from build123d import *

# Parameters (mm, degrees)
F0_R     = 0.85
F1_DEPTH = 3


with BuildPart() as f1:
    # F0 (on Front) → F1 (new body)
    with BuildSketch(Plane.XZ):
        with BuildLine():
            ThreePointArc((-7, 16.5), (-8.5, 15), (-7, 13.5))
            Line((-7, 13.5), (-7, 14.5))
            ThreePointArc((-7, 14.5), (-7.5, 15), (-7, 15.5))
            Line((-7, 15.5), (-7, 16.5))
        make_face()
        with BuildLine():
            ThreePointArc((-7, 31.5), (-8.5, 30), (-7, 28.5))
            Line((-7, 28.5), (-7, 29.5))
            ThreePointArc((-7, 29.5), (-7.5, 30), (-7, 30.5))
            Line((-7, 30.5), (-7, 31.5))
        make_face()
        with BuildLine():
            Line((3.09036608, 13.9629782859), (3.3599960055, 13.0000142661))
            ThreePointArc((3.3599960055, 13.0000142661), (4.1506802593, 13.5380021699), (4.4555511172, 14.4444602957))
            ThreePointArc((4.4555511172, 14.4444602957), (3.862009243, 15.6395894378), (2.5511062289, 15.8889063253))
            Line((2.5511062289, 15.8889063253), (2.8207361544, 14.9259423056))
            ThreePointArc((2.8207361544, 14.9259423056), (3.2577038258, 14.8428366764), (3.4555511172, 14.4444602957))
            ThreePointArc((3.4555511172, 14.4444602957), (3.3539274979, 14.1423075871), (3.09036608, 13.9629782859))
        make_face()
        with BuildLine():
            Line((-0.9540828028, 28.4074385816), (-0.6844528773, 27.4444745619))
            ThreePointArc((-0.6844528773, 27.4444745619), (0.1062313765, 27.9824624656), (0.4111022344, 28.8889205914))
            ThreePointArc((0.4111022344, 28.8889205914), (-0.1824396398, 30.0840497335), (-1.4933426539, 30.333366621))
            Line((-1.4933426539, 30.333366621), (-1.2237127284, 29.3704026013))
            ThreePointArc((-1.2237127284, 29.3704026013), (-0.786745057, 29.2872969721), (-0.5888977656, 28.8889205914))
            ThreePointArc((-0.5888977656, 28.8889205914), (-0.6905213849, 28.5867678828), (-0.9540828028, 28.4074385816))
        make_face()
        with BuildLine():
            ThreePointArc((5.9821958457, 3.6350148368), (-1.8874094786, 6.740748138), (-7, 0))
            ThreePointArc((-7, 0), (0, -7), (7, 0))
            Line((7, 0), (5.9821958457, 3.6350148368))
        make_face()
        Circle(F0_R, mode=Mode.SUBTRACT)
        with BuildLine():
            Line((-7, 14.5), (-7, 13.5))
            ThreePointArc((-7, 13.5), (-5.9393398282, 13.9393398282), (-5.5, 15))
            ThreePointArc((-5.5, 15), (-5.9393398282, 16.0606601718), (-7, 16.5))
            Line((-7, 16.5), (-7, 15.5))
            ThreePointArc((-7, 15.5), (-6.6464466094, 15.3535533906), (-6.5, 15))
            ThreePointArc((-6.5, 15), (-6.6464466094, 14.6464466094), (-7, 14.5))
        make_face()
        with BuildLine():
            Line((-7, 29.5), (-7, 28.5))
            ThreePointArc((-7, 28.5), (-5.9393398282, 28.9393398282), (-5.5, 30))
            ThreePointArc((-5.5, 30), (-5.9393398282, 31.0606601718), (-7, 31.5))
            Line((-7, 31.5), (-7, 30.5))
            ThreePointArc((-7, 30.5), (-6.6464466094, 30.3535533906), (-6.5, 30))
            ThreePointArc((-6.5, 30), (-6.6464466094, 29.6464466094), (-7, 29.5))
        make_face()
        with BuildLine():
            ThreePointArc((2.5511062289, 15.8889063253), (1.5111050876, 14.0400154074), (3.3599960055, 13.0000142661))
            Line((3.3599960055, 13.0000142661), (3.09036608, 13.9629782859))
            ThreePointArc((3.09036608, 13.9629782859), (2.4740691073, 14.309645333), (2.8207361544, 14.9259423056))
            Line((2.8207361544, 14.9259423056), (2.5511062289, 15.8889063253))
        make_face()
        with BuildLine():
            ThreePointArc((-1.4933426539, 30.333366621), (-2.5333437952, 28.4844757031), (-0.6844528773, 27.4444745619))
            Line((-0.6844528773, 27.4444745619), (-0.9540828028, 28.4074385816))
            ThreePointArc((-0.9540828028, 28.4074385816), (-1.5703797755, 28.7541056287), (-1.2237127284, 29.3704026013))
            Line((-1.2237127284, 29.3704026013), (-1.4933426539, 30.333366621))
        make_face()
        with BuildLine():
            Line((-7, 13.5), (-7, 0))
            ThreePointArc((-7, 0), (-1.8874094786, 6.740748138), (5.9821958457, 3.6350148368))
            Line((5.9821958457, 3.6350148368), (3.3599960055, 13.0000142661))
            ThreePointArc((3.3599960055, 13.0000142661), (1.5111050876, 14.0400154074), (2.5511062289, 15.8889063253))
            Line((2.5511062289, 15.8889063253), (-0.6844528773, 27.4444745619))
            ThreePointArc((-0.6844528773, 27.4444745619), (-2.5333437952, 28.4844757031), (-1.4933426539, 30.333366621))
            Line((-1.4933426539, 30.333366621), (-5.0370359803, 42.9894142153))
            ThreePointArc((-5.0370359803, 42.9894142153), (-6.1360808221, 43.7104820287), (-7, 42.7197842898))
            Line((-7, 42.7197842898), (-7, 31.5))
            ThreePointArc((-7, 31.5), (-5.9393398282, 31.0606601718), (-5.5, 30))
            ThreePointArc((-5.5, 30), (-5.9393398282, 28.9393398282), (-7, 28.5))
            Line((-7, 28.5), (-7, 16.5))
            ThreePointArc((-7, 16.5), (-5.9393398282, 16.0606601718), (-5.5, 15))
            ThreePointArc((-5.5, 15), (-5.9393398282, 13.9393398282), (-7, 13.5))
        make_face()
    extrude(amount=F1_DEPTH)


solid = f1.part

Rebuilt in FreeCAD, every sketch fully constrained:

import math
import FreeCAD as App
import Part
import Sketcher
from FreeCAD import Vector
Q = App.Units.Quantity

doc = App.newDocument("Part")
params = doc.addObject("Spreadsheet::Sheet", "Params")
for row, (alias, value) in enumerate([
    ("sketch1_radius", "7 mm"),
    ("sketch1_radius2", "1 mm"),
    ("sketch1_diameter", "1.7 mm"),
    ("sketch1_radius3", "1.5 mm"),
    ("sketch1_radius4", "0.5 mm"),
    ("pad1_length", "3 mm"),
], start=1):
    params.set(f"A{row}", alias)
    params.set(f"B{row}", "=" + value)
    params.setAlias(f"B{row}", alias)

body = doc.addObject("PartDesign::Body", "Body")

sketch1 = doc.addObject("Sketcher::SketchObject", "Sketch")
body.addObject(sketch1)
sketch1.AttachmentSupport = (doc.XZ_Plane, [""])
sketch1.MapMode = "FlatFace"
sketch1.addGeometry(Part.ArcOfCircle(Part.Circle(Vector(-7, 15, 0), Vector(0, 0, 1), 1.5), math.radians(90), math.radians(270)), False)
sketch1.addGeometry(Part.LineSegment(Vector(-7, 13.5, 0), Vector(-7, 0, 0)), False)
sketch1.addGeometry(Part.ArcOfCircle(Part.Circle(Vector(0, 0, 0), Vector(0, 0, 1), 7), math.radians(180), math.radians(360)), False)
sketch1.addGeometry(Part.LineSegment(Vector(7, 0, 0), Vector(3.4, 13, 0)), False)
sketch1.addGeometry(Part.ArcOfCircle(Part.Circle(Vector(3, 14.4, 0), Vector(0, 0, 1), 1.5), math.radians(-74), math.radians(0)), False)
sketch1.addGeometry(Part.ArcOfCircle(Part.Circle(Vector(3, 14.4, 0), Vector(0, 0, 1), 1.5), math.radians(0), math.radians(106)), False)
sketch1.addGeometry(Part.LineSegment(Vector(2.6, 15.9, 0), Vector(-0.7, 27.4, 0)), False)
sketch1.addGeometry(Part.ArcOfCircle(Part.Circle(Vector(-1.1, 28.9, 0), Vector(0, 0, 1), 1.5), math.radians(-74), math.radians(0)), False)
sketch1.addGeometry(Part.ArcOfCircle(Part.Circle(Vector(-1.1, 28.9, 0), Vector(0, 0, 1), 1.5), math.radians(0), math.radians(106)), False)
sketch1.addGeometry(Part.LineSegment(Vector(-1.5, 30.3, 0), Vector(-5, 43, 0)), False)
sketch1.addGeometry(Part.ArcOfCircle(Part.Circle(Vector(-6, 42.7, 0), Vector(0, 0, 1), 1), math.radians(16), math.radians(180)), False)
sketch1.addGeometry(Part.LineSegment(Vector(-7, 42.7, 0), Vector(-7, 31.5, 0)), False)
sketch1.addGeometry(Part.ArcOfCircle(Part.Circle(Vector(-7, 30, 0), Vector(0, 0, 1), 1.5), math.radians(90), math.radians(270)), False)
sketch1.addGeometry(Part.LineSegment(Vector(-7, 28.5, 0), Vector(-7, 16.5, 0)), False)
sketch1.addGeometry(Part.ArcOfCircle(Part.Circle(Vector(-7, 15, 0), Vector(0, 0, 1), 0.5), math.radians(90), math.radians(270)), False)
sketch1.addGeometry(Part.ArcOfCircle(Part.Circle(Vector(-7, 15, 0), Vector(0, 0, 1), 0.5), math.radians(0), math.radians(90)), False)
sketch1.addGeometry(Part.ArcOfCircle(Part.Circle(Vector(-7, 15, 0), Vector(0, 0, 1), 0.5), math.radians(-90), math.radians(0)), False)
sketch1.addGeometry(Part.Circle(Vector(0, 0, 0), Vector(0, 0, 1), 0.8), False)
sketch1.addGeometry(Part.ArcOfCircle(Part.Circle(Vector(3, 14.4, 0), Vector(0, 0, 1), 0.5), math.radians(106), math.radians(286)), False)
sketch1.addGeometry(Part.ArcOfCircle(Part.Circle(Vector(3, 14.4, 0), Vector(0, 0, 1), 0.5), math.radians(0), math.radians(106)), False)
sketch1.addGeometry(Part.ArcOfCircle(Part.Circle(Vector(3, 14.4, 0), Vector(0, 0, 1), 0.5), math.radians(-74), math.radians(0)), False)
sketch1.addGeometry(Part.ArcOfCircle(Part.Circle(Vector(-1.1, 28.9, 0), Vector(0, 0, 1), 0.5), math.radians(106), math.radians(286)), False)
sketch1.addGeometry(Part.ArcOfCircle(Part.Circle(Vector(-1.1, 28.9, 0), Vector(0, 0, 1), 0.5), math.radians(0), math.radians(106)), False)
sketch1.addGeometry(Part.ArcOfCircle(Part.Circle(Vector(-1.1, 28.9, 0), Vector(0, 0, 1), 0.5), math.radians(-74), math.radians(0)), False)
sketch1.addGeometry(Part.ArcOfCircle(Part.Circle(Vector(-7, 30, 0), Vector(0, 0, 1), 0.5), math.radians(0), math.radians(90)), False)
sketch1.addGeometry(Part.ArcOfCircle(Part.Circle(Vector(-7, 30, 0), Vector(0, 0, 1), 0.5), math.radians(-90), math.radians(0)), False)
sketch1.addGeometry(Part.ArcOfCircle(Part.Circle(Vector(-7, 30, 0), Vector(0, 0, 1), 0.5), math.radians(90), math.radians(270)), False)
sketch1.addConstraint(Sketcher.Constraint("Coincident", 0, 2, 1, 1))
sketch1.addConstraint(Sketcher.Constraint("Tangent", 1, 2, 2, 1))
sketch1.addConstraint(Sketcher.Constraint("Coincident", 2, 2, 3, 1))
sketch1.addConstraint(Sketcher.Constraint("Coincident", 3, 2, 4, 1))
sketch1.addConstraint(Sketcher.Constraint("Tangent", 4, 2, 5, 1))
sketch1.addConstraint(Sketcher.Constraint("Coincident", 5, 2, 6, 1))
sketch1.addConstraint(Sketcher.Constraint("Coincident", 6, 2, 7, 1))
sketch1.addConstraint(Sketcher.Constraint("Tangent", 7, 2, 8, 1))
sketch1.addConstraint(Sketcher.Constraint("Coincident", 8, 2, 9, 1))
sketch1.addConstraint(Sketcher.Constraint("Tangent", 9, 2, 10, 1))
sketch1.addConstraint(Sketcher.Constraint("Tangent", 10, 2, 11, 1))
sketch1.addConstraint(Sketcher.Constraint("Coincident", 11, 2, 12, 1))
sketch1.addConstraint(Sketcher.Constraint("Coincident", 12, 2, 13, 1))
sketch1.addConstraint(Sketcher.Constraint("Coincident", 13, 2, 0, 1))
sketch1.addConstraint(Sketcher.Constraint("Tangent", 14, 1, 15, 2))
sketch1.addConstraint(Sketcher.Constraint("Tangent", 15, 1, 16, 2))
sketch1.addConstraint(Sketcher.Constraint("Tangent", 16, 1, 14, 2))
sketch1.addConstraint(Sketcher.Constraint("Tangent", 18, 1, 19, 2))
sketch1.addConstraint(Sketcher.Constraint("Tangent", 19, 1, 20, 2))
sketch1.addConstraint(Sketcher.Constraint("Tangent", 20, 1, 18, 2))
sketch1.addConstraint(Sketcher.Constraint("Tangent", 21, 1, 22, 2))
sketch1.addConstraint(Sketcher.Constraint("Tangent", 22, 1, 23, 2))
sketch1.addConstraint(Sketcher.Constraint("Tangent", 23, 1, 21, 2))
sketch1.addConstraint(Sketcher.Constraint("Tangent", 24, 1, 25, 2))
sketch1.addConstraint(Sketcher.Constraint("Tangent", 25, 1, 26, 2))
sketch1.addConstraint(Sketcher.Constraint("Tangent", 26, 1, 24, 2))
sketch1.addConstraint(Sketcher.Constraint("Vertical", 1))
sketch1.addConstraint(Sketcher.Constraint("Vertical", 11))
sketch1.addConstraint(Sketcher.Constraint("Vertical", 13))
sketch1.addConstraint(Sketcher.Constraint("Coincident", 2, 3, -1, 1))
sketch1.addConstraint(Sketcher.Constraint("Coincident", 17, 3, -1, 1))
sketch1.addConstraint(Sketcher.Constraint("Coincident", 14, 3, 0, 3))
sketch1.addConstraint(Sketcher.Constraint("Coincident", 18, 3, 4, 3))
sketch1.addConstraint(Sketcher.Constraint("Coincident", 21, 3, 7, 3))
sketch1.addConstraint(Sketcher.Constraint("Coincident", 24, 3, 12, 3))
sketch1.addConstraint(Sketcher.Constraint("Equal", 0, 4))
sketch1.addConstraint(Sketcher.Constraint("Equal", 4, 5))
sketch1.addConstraint(Sketcher.Constraint("Equal", 5, 7))
sketch1.addConstraint(Sketcher.Constraint("Equal", 7, 8))
sketch1.addConstraint(Sketcher.Constraint("Equal", 8, 12))
sketch1.addConstraint(Sketcher.Constraint("Equal", 16, 18))
sketch1.addConstraint(Sketcher.Constraint("Equal", 20, 21))
sketch1.addConstraint(Sketcher.Constraint("Equal", 23, 24))
sketch1.addConstraint(Sketcher.Constraint("PointOnObject", 2, 2, -1))
sketch1.addConstraint(Sketcher.Constraint("Parallel", 3, 6))
sketch1.addConstraint(Sketcher.Constraint("Parallel", 6, 9))
sketch1.addConstraint(Sketcher.Constraint("Horizontal", 20, 3, 4, 2))
sketch1.addConstraint(Sketcher.Constraint("Horizontal", 23, 3, 7, 2))
sketch1.addConstraint(Sketcher.Constraint("Horizontal", 16, 3, 15, 1))
sketch1.addConstraint(Sketcher.Constraint("Horizontal", 4, 2, 19, 1))
sketch1.addConstraint(Sketcher.Constraint("Horizontal", 7, 2, 22, 1))
sketch1.addConstraint(Sketcher.Constraint("Horizontal", 26, 3, 24, 1))
sketch1.addConstraint(Sketcher.Constraint("Vertical", 0, 3, 12, 3))
sketch1.addConstraint(Sketcher.Constraint("Vertical", 26, 3, 0, 2))
sketch1.addConstraint(Sketcher.Constraint("Vertical", 1, 2, 10, 2))
sketch1.addConstraint(Sketcher.Constraint("Vertical", 11, 2, 12, 2))
sketch1.addConstraint(Sketcher.Constraint("Vertical", 13, 2, 14, 1))
sketch1.addConstraint(Sketcher.Constraint("Vertical", 14, 1, 16, 1))
sketch1.addConstraint(Sketcher.Constraint("Vertical", 16, 1, 25, 1))
sketch1.addConstraint(Sketcher.Constraint("Vertical", 25, 1, 26, 1))
sketch1.addConstraint(Sketcher.Constraint("Radius", 2, Q("7 mm")))
sketch1.addConstraint(Sketcher.Constraint("Radius", 10, Q("1 mm")))
sketch1.addConstraint(Sketcher.Constraint("Diameter", 17, Q("1.7 mm")))
sketch1.addConstraint(Sketcher.Constraint("Radius", 0, Q("1.5 mm")))
sketch1.addConstraint(Sketcher.Constraint("Radius", 14, Q("0.5 mm")))
sketch1.addConstraint(Sketcher.Constraint("DistanceY", 13, 2, 13, 1, Q("12 mm")))
sketch1.addConstraint(Sketcher.Constraint("Distance", 6, Q("12 mm")))
sketch1.addConstraint(Sketcher.Constraint("DistanceY", 1, 2, 1, 1, Q("13.5 mm")))
sketch1.addConstraint(Sketcher.Constraint("Distance", 3, Q("13.5 mm")))
sketch1.addConstraint(Sketcher.Constraint("DistanceY", 11, 2, 11, 1, Q("11.219784 mm")))
sketch1.addConstraint(Sketcher.Constraint("DistanceX", -1, 1, 4, 3, Q("2.955551 mm")))
sketch1.addConstraint(Sketcher.Constraint("DistanceY", -1, 1, 7, 3, Q("28.888921 mm")))
sketch1.addConstraint(Sketcher.Constraint("DistanceY", -1, 1, 20, 1, Q("13.962978 mm")))
sketch1.addConstraint(Sketcher.Constraint("DistanceY", -1, 1, 23, 1, Q("28.407439 mm")))
sketch1.addConstraint(Sketcher.Constraint("DistanceY", 10, 3, 9, 2, Q("0.26963 mm")))
sketch1.addConstraint(Sketcher.Constraint("DistanceX", -1, 1, 5, 2, Q("2.551106 mm")))
sketch1.addConstraint(Sketcher.Constraint("DistanceX", -1, 1, 18, 1, Q("2.820736 mm")))
sketch1.addConstraint(Sketcher.Constraint("DistanceX", 21, 1, -1, 1, Q("1.223713 mm")))
sketch1.setExpression("Constraints[60]", "Params.sketch1_radius")
sketch1.setExpression("Constraints[61]", "Params.sketch1_radius2")
sketch1.setExpression("Constraints[62]", "Params.sketch1_diameter")
sketch1.setExpression("Constraints[63]", "Params.sketch1_radius3")
sketch1.setExpression("Constraints[64]", "Params.sketch1_radius4")
pad1 = doc.addObject("PartDesign::Pad", "Pad")
body.addObject(pad1)
pad1.Profile = sketch1
pad1.setExpression("Length", "Params.pad1_length")

doc.recompute()
